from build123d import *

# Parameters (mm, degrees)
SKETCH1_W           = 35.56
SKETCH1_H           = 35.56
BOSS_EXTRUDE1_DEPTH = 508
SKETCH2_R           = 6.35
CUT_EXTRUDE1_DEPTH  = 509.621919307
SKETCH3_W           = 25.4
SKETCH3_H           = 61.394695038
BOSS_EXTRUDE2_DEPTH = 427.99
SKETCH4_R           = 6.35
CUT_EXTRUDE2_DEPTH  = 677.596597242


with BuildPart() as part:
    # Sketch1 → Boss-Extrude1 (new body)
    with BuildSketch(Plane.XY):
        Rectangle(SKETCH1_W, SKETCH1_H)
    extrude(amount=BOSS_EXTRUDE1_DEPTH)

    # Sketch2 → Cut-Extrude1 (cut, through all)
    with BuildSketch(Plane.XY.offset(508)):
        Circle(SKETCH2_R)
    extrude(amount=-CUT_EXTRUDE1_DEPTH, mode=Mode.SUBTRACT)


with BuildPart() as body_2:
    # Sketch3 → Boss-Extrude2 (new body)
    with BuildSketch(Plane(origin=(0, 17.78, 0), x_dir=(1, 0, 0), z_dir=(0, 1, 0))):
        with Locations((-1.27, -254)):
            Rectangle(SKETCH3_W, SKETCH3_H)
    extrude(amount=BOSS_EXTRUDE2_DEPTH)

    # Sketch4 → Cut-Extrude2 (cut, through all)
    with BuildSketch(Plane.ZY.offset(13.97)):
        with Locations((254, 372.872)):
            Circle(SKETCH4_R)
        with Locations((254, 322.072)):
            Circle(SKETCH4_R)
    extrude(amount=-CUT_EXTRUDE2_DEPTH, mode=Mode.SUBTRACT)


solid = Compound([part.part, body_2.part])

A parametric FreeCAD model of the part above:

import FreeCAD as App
import Part
import Sketcher
Q = App.Units.Quantity

doc = App.newDocument("Part")
params = doc.addObject("Spreadsheet::Sheet", "Params")
for row, (alias, value) in enumerate([
    ("sketch1_width", "1.4 in"),
    ("pad1_length", "20 in"),
    ("sketch2_diameter", "0.5 in"),
    ("sketch3_width", "1 in"),
    ("pad2_length", "16.85 in"),
    ("sketch4_diameter", "0.5 in"),
], start=1):
    params.set(f"A{row}", alias)
    params.set(f"B{row}", "=" + value)
    params.setAlias(f"B{row}", alias)

body = doc.addObject("PartDesign::Body", "Body")

# Sketch on XY plane
sketch1 = doc.addObject("Sketcher::SketchObject", "Sketch")
body.addObject(sketch1)
sketch1.AttachmentSupport = (doc.XY_Plane, [""])
sketch1.MapMode = "FlatFace"
sketch1.addGeometry(Part.LineSegment(App.Vector(-18, 18, 0), App.Vector(-18, -18, 0)), False)
sketch1.addGeometry(Part.LineSegment(App.Vector(-18, -18, 0), App.Vector(18, -18, 0)), False)
sketch1.addGeometry(Part.LineSegment(App.Vector(18, -18, 0), App.Vector(18, 18, 0)), False)
sketch1.addGeometry(Part.LineSegment(App.Vector(18, 18, 0), App.Vector(-18, 18, 0)), False)
sketch1.addConstraint(Sketcher.Constraint("Coincident", 0, 2, 1, 1))
sketch1.addConstraint(Sketcher.Constraint("Coincident", 1, 2, 2, 1))
sketch1.addConstraint(Sketcher.Constraint("Coincident", 2, 2, 3, 1))
sketch1.addConstraint(Sketcher.Constraint("Coincident", 3, 2, 0, 1))
sketch1.addConstraint(Sketcher.Constraint("Vertical", 0))
sketch1.addConstraint(Sketcher.Constraint("Horizontal", 1))
sketch1.addConstraint(Sketcher.Constraint("Vertical", 2))
sketch1.addConstraint(Sketcher.Constraint("Horizontal", 3))
sketch1.addConstraint(Sketcher.Constraint("Symmetric", 0, 2, 2, 2, -1, 1))
sketch1.addConstraint(Sketcher.Constraint("Equal", 3, 0))
sketch1.addConstraint(Sketcher.Constraint("DistanceX", 1, 1, 1, 2, Q("1.4 in")))
sketch1.setExpression("Constraints[10]", "Params.sketch1_width")
pad1 = doc.addObject("PartDesign::Pad", "Pad")
body.addObject(pad1)
pad1.Profile = sketch1
pad1.setExpression("Length", "Params.pad1_length")

# Sketch on XY plane
sketch2 = doc.addObject("Sketcher::SketchObject", "Sketch001")
body.addObject(sketch2)
sketch2.AttachmentSupport = (doc.XY_Plane, [""])
sketch2.MapMode = "FlatFace"
sketch2.AttachmentOffset = App.Placement(App.Vector(0, 0, 20 * 25.4), App.Rotation())
sketch2.addGeometry(Part.Circle(App.Vector(0, 0, 0), App.Vector(0, 0, 1), 6), False)
sketch2.addConstraint(Sketcher.Constraint("Coincident", 0, 3, -1, 1))
sketch2.addConstraint(Sketcher.Constraint("Diameter", 0, Q("0.5 in")))
sketch2.setExpression("Constraints[1]", "Params.sketch2_diameter")
pocket1 = doc.addObject("PartDesign::Pocket", "Pocket")
body.addObject(pocket1)
pocket1.Profile = sketch2
pocket1.Type = "ThroughAll"
body2 = doc.addObject("PartDesign::Body", "Body001")

# Sketch on XZ plane
sketch3 = doc.addObject("Sketcher::SketchObject", "Sketch002")
body2.addObject(sketch3)
sketch3.AttachmentSupport = (doc.getObject("XZ_Plane001"), [""])
sketch3.MapMode = "FlatFace"
sketch3.AttachmentOffset = App.Placement(App.Vector(0, 0, -0.7 * 25.4), App.Rotation())
sketch3.addGeometry(Part.LineSegment(App.Vector(-14, 223, 0), App.Vector(-14, 285, 0)), False)
sketch3.addGeometry(Part.LineSegment(App.Vector(-14, 285, 0), App.Vector(11, 285, 0)), False)
sketch3.addGeometry(Part.LineSegment(App.Vector(11, 285, 0), App.Vector(11, 223, 0)), False)
sketch3.addGeometry(Part.LineSegment(App.Vector(11, 223, 0), App.Vector(-14, 223, 0)), False)
sketch3.addConstraint(Sketcher.Constraint("Coincident", 0, 2, 1, 1))
sketch3.addConstraint(Sketcher.Constraint("Coincident", 1, 2, 2, 1))
sketch3.addConstraint(Sketcher.Constraint("Coincident", 2, 2, 3, 1))
sketch3.addConstraint(Sketcher.Constraint("Coincident", 3, 2, 0, 1))
sketch3.addConstraint(Sketcher.Constraint("Vertical", 0))
sketch3.addConstraint(Sketcher.Constraint("Horizontal", 1))
sketch3.addConstraint(Sketcher.Constraint("Vertical", 2))
sketch3.addConstraint(Sketcher.Constraint("Horizontal", 3))
sketch3.addConstraint(Sketcher.Constraint("DistanceX", 1, 1, 1, 2, Q("1 in")))
sketch3.addConstraint(Sketcher.Constraint("DistanceX", 0, 2, -1, 1, Q("0.55 in")))
sketch3.addConstraint(Sketcher.Constraint("DistanceY", 0, 1, 0, 2, Q("61.394695 mm")))
sketch3.addConstraint(Sketcher.Constraint("DistanceY", -1, 1, 0, 2, Q("284.697348 mm")))
sketch3.setExpression("Constraints[8]", "Params.sketch3_width")
pad2 = doc.addObject("PartDesign::Pad", "Pad001")
body2.addObject(pad2)
pad2.Profile = sketch3
pad2.setExpression("Length", "Params.pad2_length")
pad2.Reversed = True

# Sketch on YZ plane
sketch4 = doc.addObject("Sketcher::SketchObject", "Sketch003")
body2.addObject(sketch4)
sketch4.AttachmentSupport = (doc.getObject("YZ_Plane001"), [""])
sketch4.MapMode = "FlatFace"
sketch4.AttachmentOffset = App.Placement(App.Vector(0, 0, -0.55 * 25.4), App.Rotation())
sketch4.addGeometry(Part.Circle(App.Vector(373, 254, 0), App.Vector(0, 0, 1), 6), False)
sketch4.addGeometry(Part.Circle(App.Vector(322, 254, 0), App.Vector(0, 0, 1), 6), False)
sketch4.addConstraint(Sketcher.Constraint("Equal", 0, 1))
sketch4.addConstraint(Sketcher.Constraint("Horizontal", 0, 3, 1, 3))
sketch4.addConstraint(Sketcher.Constraint("Diameter", 0, Q("0.5 in")))
sketch4.addConstraint(Sketcher.Constraint("DistanceY", -1, 1, 0, 3, Q("10 in")))
sketch4.addConstraint(Sketcher.Constraint("DistanceX", 1, 3, 0, 3, Q("2 in")))
sketch4.addConstraint(Sketcher.Constraint("DistanceX", -1, 1, 0, 3, Q("14.68 in")))
sketch4.setExpression("Constraints[2]", "Params.sketch4_diameter")
pocket2 = doc.addObject("PartDesign::Pocket", "Pocket001")
body2.addObject(pocket2)
pocket2.Profile = sketch4
pocket2.Type = "ThroughAll"
pocket2.Reversed = True

doc.recompute()
